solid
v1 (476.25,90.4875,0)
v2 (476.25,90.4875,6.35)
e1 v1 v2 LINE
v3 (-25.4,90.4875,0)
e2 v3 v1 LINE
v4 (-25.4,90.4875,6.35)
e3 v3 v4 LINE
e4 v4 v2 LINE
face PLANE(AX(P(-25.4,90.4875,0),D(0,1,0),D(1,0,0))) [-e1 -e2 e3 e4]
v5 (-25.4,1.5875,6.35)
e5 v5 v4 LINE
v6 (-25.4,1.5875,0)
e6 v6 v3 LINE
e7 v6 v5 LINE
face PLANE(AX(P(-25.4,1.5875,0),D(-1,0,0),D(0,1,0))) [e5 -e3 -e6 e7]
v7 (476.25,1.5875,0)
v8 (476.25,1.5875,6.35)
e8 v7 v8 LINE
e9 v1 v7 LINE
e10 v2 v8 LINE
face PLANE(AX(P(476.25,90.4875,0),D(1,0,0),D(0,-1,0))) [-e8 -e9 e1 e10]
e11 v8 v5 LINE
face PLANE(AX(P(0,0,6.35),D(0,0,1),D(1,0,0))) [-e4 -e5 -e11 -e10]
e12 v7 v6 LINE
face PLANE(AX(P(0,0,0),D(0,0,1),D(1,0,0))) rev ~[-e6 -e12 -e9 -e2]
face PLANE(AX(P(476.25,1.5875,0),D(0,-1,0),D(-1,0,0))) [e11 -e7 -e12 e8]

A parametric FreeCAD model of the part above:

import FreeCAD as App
import Part
import Sketcher

V = App.Vector
Q = App.Units.Quantity

doc = App.newDocument("Part")
body = doc.addObject("PartDesign::Body", "Body")

sketch1 = body.newObject("Sketcher::SketchObject", "Sketch")
sketch1.AttachmentSupport = (doc.getObject("XY_Plane"), [""])
sketch1.MapMode = "FlatFace"
sketch1.addGeometry([
    Part.LineSegment(V(476.25, 90.4875, 0), V(-25.4, 90.4875, 0)),
    Part.LineSegment(V(-25.4, 90.4875, 0), V(-25.4, 1.5875, 0)),
    Part.LineSegment(V(-25.4, 1.5875, 0), V(476.25, 1.5875, 0)),
    Part.LineSegment(V(476.25, 1.5875, 0), V(476.25, 90.4875, 0)),
], False)
sketch1.addConstraint([
    Sketcher.Constraint("Coincident", 0, 2, 1, 1),
    Sketcher.Constraint("Coincident", 1, 2, 2, 1),
    Sketcher.Constraint("Coincident", 2, 2, 3, 1),
    Sketcher.Constraint("Coincident", 3, 2, 0, 1),
    Sketcher.Constraint("Horizontal", 0),
    Sketcher.Constraint("Vertical", 1),
    Sketcher.Constraint("Horizontal", 2),
    Sketcher.Constraint("Vertical", 3),
    Sketcher.Constraint("DistanceY", 1, 2, 1, 1, Q("3.5 in")),
    Sketcher.Constraint("DistanceX", 0, 2, 0, 1, Q("19.75 in")),
    Sketcher.Constraint("DistanceX", 0, 2, -1, 1, Q("1 in")),
    Sketcher.Constraint("DistanceY", -1, 1, 0, 2, Q("3.5625 in")),
])
pad1 = body.newObject("PartDesign::Pad", "Pad")
pad1.Profile = sketch1
pad1.Length = Q("0.25 in")

doc.recompute()
